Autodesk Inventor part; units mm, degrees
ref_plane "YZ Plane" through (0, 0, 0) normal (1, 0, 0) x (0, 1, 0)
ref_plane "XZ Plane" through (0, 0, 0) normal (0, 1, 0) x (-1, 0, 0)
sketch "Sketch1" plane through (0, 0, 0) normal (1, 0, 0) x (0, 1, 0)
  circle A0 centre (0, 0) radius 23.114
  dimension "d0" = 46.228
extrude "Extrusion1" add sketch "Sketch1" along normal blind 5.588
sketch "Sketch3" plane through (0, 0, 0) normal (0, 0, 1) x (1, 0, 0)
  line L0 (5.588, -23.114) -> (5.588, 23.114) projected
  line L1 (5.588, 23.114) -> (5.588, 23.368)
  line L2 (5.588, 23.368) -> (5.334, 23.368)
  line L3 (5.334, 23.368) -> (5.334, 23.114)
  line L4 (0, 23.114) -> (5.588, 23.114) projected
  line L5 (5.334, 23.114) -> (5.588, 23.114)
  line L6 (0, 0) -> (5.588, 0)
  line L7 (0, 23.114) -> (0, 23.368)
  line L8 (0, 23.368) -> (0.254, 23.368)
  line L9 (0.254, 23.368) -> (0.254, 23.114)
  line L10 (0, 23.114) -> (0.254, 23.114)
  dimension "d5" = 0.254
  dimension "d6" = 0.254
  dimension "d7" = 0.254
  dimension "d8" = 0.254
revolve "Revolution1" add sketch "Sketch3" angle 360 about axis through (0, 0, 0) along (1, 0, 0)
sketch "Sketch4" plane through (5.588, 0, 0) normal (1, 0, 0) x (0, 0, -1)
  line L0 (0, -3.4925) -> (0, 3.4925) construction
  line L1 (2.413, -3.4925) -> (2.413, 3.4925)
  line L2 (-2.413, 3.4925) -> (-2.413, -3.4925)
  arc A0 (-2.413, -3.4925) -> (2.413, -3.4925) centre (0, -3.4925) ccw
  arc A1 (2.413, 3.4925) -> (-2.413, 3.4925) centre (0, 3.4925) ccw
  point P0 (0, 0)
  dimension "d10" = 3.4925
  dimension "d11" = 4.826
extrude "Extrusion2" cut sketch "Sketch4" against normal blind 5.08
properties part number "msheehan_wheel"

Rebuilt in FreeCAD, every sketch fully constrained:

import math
import FreeCAD as App
import Part
import Sketcher
from FreeCAD import Vector
Q = App.Units.Quantity


def add_polygon(sketch, points):
    """Adds a closed chain of lines whose ends are joined by coincident constraints."""
    first, n = sketch.GeometryCount, len(points)
    for a, b in zip(points, points[1:] + points[:1]):
        sketch.addGeometry(Part.LineSegment(App.Vector(*a, 0), App.Vector(*b, 0)), False)
    for i in range(n):
        sketch.addConstraint(Sketcher.Constraint("Coincident", first + i, 2, first + (i + 1) % n, 1))

doc = App.newDocument("Part")
body = doc.addObject("PartDesign::Body", "Body")

sketch1 = body.newObject("Sketcher::SketchObject", "Sketch")
sketch1.AttachmentSupport = (doc.getObject("YZ_Plane"), [""])
sketch1.MapMode = "FlatFace"
sketch1.addGeometry(Part.Circle(Vector(0, 0, 0), Vector(0, 0, 1), 23), False)
sketch1.addConstraint([
    Sketcher.Constraint("Coincident", 0, 3, -1, 1),
    Sketcher.Constraint("Diameter", 0, Q("1.82 in")),
])
pad1 = body.newObject("PartDesign::Pad", "Pad")
pad1.Profile = sketch1
pad1.Length = Q("0.22 in")

sketch2 = body.newObject("Sketcher::SketchObject", "Sketch001")
sketch2.AttachmentSupport = (doc.getObject("XY_Plane"), [""])
sketch2.MapMode = "FlatFace"
add_polygon(sketch2, [(5.33, 23.11), (5.59, 23.11), (5.59, 23.37), (5.33, 23.37)])
add_polygon(sketch2, [(0, 23.11), (0.25, 23.11), (0.25, 23.37), (0, 23.37)])
sketch2.addConstraint([
    Sketcher.Constraint("Horizontal", 0),
    Sketcher.Constraint("Vertical", 1),
    Sketcher.Constraint("Horizontal", 2),
    Sketcher.Constraint("Vertical", 3),
    Sketcher.Constraint("Horizontal", 4),
    Sketcher.Constraint("Vertical", 5),
    Sketcher.Constraint("Horizontal", 6),
    Sketcher.Constraint("Vertical", 7),
    Sketcher.Constraint("PointOnObject", 6, 2, -2),
    Sketcher.Constraint("Horizontal", 3, 2, 4, 2),
    Sketcher.Constraint("Horizontal", 2, 2, 5, 2),
    Sketcher.Constraint("Equal", 2, 4),
    Sketcher.Constraint("Equal", 6, 1),
    Sketcher.Constraint("DistanceX", 0, 1, 0, 2, Q("0.01 in")),
    Sketcher.Constraint("DistanceX", 4, 2, 3, 2, Q("0.2 in")),
    Sketcher.Constraint("DistanceY", -1, 1, 0, 2, Q("0.91 in")),
])
revolution = body.newObject("PartDesign::Revolution", "Revolution")
revolution.Profile = sketch2
revolution.ReferenceAxis = (sketch2, ["H_Axis"])
revolution.Angle = 360

sketch3 = body.newObject("Sketcher::SketchObject", "Sketch002")
sketch3.AttachmentSupport = (doc.getObject("YZ_Plane"), [""])
sketch3.MapMode = "FlatFace"
sketch3.AttachmentOffset = App.Placement(Vector(0, 0, 0.22 * 25.4), App.Rotation())
sketch3.addGeometry([
    Part.ArcOfCircle(Part.Circle(Vector(-3.5, 0, 0), Vector(0, 0, 1), 2.4), math.radians(90), math.radians(270)),
    Part.LineSegment(Vector(-3.5, -2.4, 0), Vector(3.5, -2.4, 0)),
    Part.ArcOfCircle(Part.Circle(Vector(3.5, 0, 0), Vector(0, 0, 1), 2.4), math.radians(-90), math.radians(90)),
    Part.LineSegment(Vector(3.5, 2.4, 0), Vector(-3.5, 2.4, 0)),
], False)
sketch3.addConstraint([
    Sketcher.Constraint("Tangent", 0, 2, 1, 1),
    Sketcher.Constraint("Tangent", 1, 2, 2, 1),
    Sketcher.Constraint("Tangent", 2, 2, 3, 1),
    Sketcher.Constraint("Tangent", 3, 2, 0, 1),
    Sketcher.Constraint("Horizontal", 1),
    Sketcher.Constraint("Horizontal", 3),
    Sketcher.Constraint("Symmetric", 0, 3, 2, 3, -1, 1),
    Sketcher.Constraint("Radius", 0, Q("0.095 in")),
    Sketcher.Constraint("DistanceX", 0, 3, -1, 1, Q("0.1375 in")),
])
pocket1 = body.newObject("PartDesign::Pocket", "Pocket")
pocket1.Profile = sketch3
pocket1.Length = Q("0.2 in")

doc.recompute()
